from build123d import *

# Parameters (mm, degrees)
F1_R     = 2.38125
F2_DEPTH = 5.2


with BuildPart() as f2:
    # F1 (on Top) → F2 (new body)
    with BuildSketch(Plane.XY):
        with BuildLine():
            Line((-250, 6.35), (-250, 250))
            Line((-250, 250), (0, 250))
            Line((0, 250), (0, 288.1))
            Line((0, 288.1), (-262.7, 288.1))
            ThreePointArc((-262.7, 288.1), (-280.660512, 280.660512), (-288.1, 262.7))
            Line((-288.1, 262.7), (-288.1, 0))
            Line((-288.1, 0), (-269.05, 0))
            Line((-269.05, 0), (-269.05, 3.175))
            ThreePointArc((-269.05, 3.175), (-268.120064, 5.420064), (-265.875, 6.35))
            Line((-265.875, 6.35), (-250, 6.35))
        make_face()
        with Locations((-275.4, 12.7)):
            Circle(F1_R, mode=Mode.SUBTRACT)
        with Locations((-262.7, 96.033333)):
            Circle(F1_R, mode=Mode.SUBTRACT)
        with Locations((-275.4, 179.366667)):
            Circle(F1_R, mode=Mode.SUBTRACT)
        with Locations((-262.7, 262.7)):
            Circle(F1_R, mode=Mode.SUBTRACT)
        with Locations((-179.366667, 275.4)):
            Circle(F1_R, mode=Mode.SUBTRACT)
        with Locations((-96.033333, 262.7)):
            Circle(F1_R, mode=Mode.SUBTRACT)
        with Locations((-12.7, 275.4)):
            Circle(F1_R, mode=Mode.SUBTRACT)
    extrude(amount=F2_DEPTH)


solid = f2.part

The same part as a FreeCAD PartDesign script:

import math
import FreeCAD as App
import Part
import Sketcher
from FreeCAD import Vector
Q = App.Units.Quantity

doc = App.newDocument("Part")
params = doc.addObject("Spreadsheet::Sheet", "Params")
for row, (alias, value) in enumerate([
    ("sketch1_radius", "1 in"),
    ("sketch1_diameter", "0.1875 in"),
    ("sketch1_height", "1.5 in"),
    ("sketch1_radius2", "0.125 in"),
    ("sketch1_width", "0.75 in"),
    ("pad1_length", "5.2 mm"),
], start=1):
    params.set(f"A{row}", alias)
    params.set(f"B{row}", "=" + value)
    params.setAlias(f"B{row}", alias)

body = doc.addObject("PartDesign::Body", "Body")

# Sketch on XY plane
sketch1 = body.newObject("Sketcher::SketchObject", "Sketch")
sketch1.AttachmentSupport = (doc.getObject("XY_Plane"), [""])
sketch1.MapMode = "FlatFace"
sketch1.addGeometry(Part.LineSegment(Vector(-250, 6.3, 0), Vector(-250, 250, 0)), False)
sketch1.addGeometry(Part.LineSegment(Vector(-250, 250, 0), Vector(0, 250, 0)), False)
sketch1.addGeometry(Part.LineSegment(Vector(0, 250, 0), Vector(0, 288.1, 0)), False)
sketch1.addGeometry(Part.LineSegment(Vector(0, 288.1, 0), Vector(-262.7, 288.1, 0)), False)
sketch1.addGeometry(Part.ArcOfCircle(Part.Circle(Vector(-262.7, 262.7, 0), Vector(0, 0, 1), 25.4), math.radians(90), math.radians(180)), False)
sketch1.addGeometry(Part.LineSegment(Vector(-288.1, 262.7, 0), Vector(-288.1, 0, 0)), False)
sketch1.addGeometry(Part.LineSegment(Vector(-288.1, 0, 0), Vector(-269.1, 0, 0)), False)
sketch1.addGeometry(Part.LineSegment(Vector(-269.1, 0, 0), Vector(-269.1, 3.2, 0)), False)
sketch1.addGeometry(Part.ArcOfCircle(Part.Circle(Vector(-265.9, 3.2, 0), Vector(0, 0, 1), 3.2), math.radians(90), math.radians(180)), False)
sketch1.addGeometry(Part.LineSegment(Vector(-265.9, 6.3, 0), Vector(-250, 6.3, 0)), False)
sketch1.addGeometry(Part.Circle(Vector(-275.4, 12.7, 0), Vector(0, 0, 1), 2.4), False)
sketch1.addGeometry(Part.Circle(Vector(-262.7, 96, 0), Vector(0, 0, 1), 2.4), False)
sketch1.addGeometry(Part.Circle(Vector(-275.4, 179.4, 0), Vector(0, 0, 1), 2.4), False)
sketch1.addGeometry(Part.Circle(Vector(-262.7, 262.7, 0), Vector(0, 0, 1), 2.4), False)
sketch1.addGeometry(Part.Circle(Vector(-179.4, 275.4, 0), Vector(0, 0, 1), 2.4), False)
sketch1.addGeometry(Part.Circle(Vector(-96, 262.7, 0), Vector(0, 0, 1), 2.4), False)
sketch1.addGeometry(Part.Circle(Vector(-12.7, 275.4, 0), Vector(0, 0, 1), 2.4), False)
sketch1.addConstraint(Sketcher.Constraint("Coincident", 0, 2, 1, 1))
sketch1.addConstraint(Sketcher.Constraint("Coincident", 1, 2, 2, 1))
sketch1.addConstraint(Sketcher.Constraint("Coincident", 2, 2, 3, 1))
sketch1.addConstraint(Sketcher.Constraint("Tangent", 3, 2, 4, 1))
sketch1.addConstraint(Sketcher.Constraint("Tangent", 4, 2, 5, 1))
sketch1.addConstraint(Sketcher.Constraint("Coincident", 5, 2, 6, 1))
sketch1.addConstraint(Sketcher.Constraint("Coincident", 6, 2, 7, 1))
sketch1.addConstraint(Sketcher.Constraint("Tangent", 7, 2, 8, 2))
sketch1.addConstraint(Sketcher.Constraint("Tangent", 8, 1, 9, 1))
sketch1.addConstraint(Sketcher.Constraint("Coincident", 9, 2, 0, 1))
sketch1.addConstraint(Sketcher.Constraint("Vertical", 0))
sketch1.addConstraint(Sketcher.Constraint("Horizontal", 1))
sketch1.addConstraint(Sketcher.Constraint("Vertical", 2))
sketch1.addConstraint(Sketcher.Constraint("Horizontal", 3))
sketch1.addConstraint(Sketcher.Constraint("Vertical", 5))
sketch1.addConstraint(Sketcher.Constraint("Horizontal", 6))
sketch1.addConstraint(Sketcher.Constraint("Vertical", 7))
sketch1.addConstraint(Sketcher.Constraint("Horizontal", 9))
sketch1.addConstraint(Sketcher.Constraint("Coincident", 13, 3, 4, 3))
sketch1.addConstraint(Sketcher.Constraint("Equal", 10, 11))
sketch1.addConstraint(Sketcher.Constraint("Equal", 11, 12))
sketch1.addConstraint(Sketcher.Constraint("Equal", 12, 13))
sketch1.addConstraint(Sketcher.Constraint("Equal", 13, 14))
sketch1.addConstraint(Sketcher.Constraint("Equal", 14, 15))
sketch1.addConstraint(Sketcher.Constraint("Equal", 15, 16))
sketch1.addConstraint(Sketcher.Constraint("PointOnObject", 1, 2, -2))
sketch1.addConstraint(Sketcher.Constraint("PointOnObject", 5, 2, -1))
sketch1.addConstraint(Sketcher.Constraint("Horizontal", 13, 3, 15, 3))
sketch1.addConstraint(Sketcher.Constraint("Horizontal", 14, 3, 16, 3))
sketch1.addConstraint(Sketcher.Constraint("Vertical", 4, 3, 11, 3))
sketch1.addConstraint(Sketcher.Constraint("Vertical", 10, 3, 12, 3))
sketch1.addConstraint(Sketcher.Constraint("Equal", 3, 5))
sketch1.addConstraint(Sketcher.Constraint("Radius", 4, Q("1 in")))
sketch1.addConstraint(Sketcher.Constraint("Diameter", 10, Q("0.1875 in")))
sketch1.addConstraint(Sketcher.Constraint("DistanceY", 2, 1, 2, 2, Q("1.5 in")))
sketch1.addConstraint(Sketcher.Constraint("Radius", 8, Q("0.125 in")))
sketch1.addConstraint(Sketcher.Constraint("DistanceX", 12, 3, 0, 2, Q("1 in")))
sketch1.addConstraint(Sketcher.Constraint("DistanceY", 0, 2, 14, 3, Q("1 in")))
sketch1.addConstraint(Sketcher.Constraint("DistanceX", 6, 1, 6, 2, Q("0.75 in")))
sketch1.addConstraint(Sketcher.Constraint("DistanceY", -1, 1, 10, 3, Q("0.5 in")))
sketch1.addConstraint(Sketcher.Constraint("DistanceX", 16, 3, -1, 1, Q("0.5 in")))
sketch1.addConstraint(Sketcher.Constraint("DistanceX", 10, 3, 4, 3, Q("0.5 in")))
sketch1.addConstraint(Sketcher.Constraint("DistanceY", 7, 1, 7, 2, Q("0.125 in")))
sketch1.addConstraint(Sketcher.Constraint("DistanceX", 1, 1, 1, 2, 250.0))
sketch1.addConstraint(Sketcher.Constraint("DistanceY", -1, 1, 11, 3, 96.033333))
sketch1.addConstraint(Sketcher.Constraint("DistanceY", -1, 1, 12, 3, 179.366667))
sketch1.addConstraint(Sketcher.Constraint("DistanceX", 14, 3, -1, 1, 179.366667))
sketch1.addConstraint(Sketcher.Constraint("DistanceX", 15, 3, -1, 1, 96.033333))
sketch1.setExpression("Constraints[32]", "Params.sketch1_radius")
sketch1.setExpression("Constraints[33]", "Params.sketch1_diameter")
sketch1.setExpression("Constraints[34]", "Params.sketch1_height")
sketch1.setExpression("Constraints[35]", "Params.sketch1_radius2")
sketch1.setExpression("Constraints[38]", "Params.sketch1_width")
pad1 = body.newObject("PartDesign::Pad", "Pad")
pad1.Profile = sketch1
pad1.setExpression("Length", "Params.pad1_length")

doc.recompute()
